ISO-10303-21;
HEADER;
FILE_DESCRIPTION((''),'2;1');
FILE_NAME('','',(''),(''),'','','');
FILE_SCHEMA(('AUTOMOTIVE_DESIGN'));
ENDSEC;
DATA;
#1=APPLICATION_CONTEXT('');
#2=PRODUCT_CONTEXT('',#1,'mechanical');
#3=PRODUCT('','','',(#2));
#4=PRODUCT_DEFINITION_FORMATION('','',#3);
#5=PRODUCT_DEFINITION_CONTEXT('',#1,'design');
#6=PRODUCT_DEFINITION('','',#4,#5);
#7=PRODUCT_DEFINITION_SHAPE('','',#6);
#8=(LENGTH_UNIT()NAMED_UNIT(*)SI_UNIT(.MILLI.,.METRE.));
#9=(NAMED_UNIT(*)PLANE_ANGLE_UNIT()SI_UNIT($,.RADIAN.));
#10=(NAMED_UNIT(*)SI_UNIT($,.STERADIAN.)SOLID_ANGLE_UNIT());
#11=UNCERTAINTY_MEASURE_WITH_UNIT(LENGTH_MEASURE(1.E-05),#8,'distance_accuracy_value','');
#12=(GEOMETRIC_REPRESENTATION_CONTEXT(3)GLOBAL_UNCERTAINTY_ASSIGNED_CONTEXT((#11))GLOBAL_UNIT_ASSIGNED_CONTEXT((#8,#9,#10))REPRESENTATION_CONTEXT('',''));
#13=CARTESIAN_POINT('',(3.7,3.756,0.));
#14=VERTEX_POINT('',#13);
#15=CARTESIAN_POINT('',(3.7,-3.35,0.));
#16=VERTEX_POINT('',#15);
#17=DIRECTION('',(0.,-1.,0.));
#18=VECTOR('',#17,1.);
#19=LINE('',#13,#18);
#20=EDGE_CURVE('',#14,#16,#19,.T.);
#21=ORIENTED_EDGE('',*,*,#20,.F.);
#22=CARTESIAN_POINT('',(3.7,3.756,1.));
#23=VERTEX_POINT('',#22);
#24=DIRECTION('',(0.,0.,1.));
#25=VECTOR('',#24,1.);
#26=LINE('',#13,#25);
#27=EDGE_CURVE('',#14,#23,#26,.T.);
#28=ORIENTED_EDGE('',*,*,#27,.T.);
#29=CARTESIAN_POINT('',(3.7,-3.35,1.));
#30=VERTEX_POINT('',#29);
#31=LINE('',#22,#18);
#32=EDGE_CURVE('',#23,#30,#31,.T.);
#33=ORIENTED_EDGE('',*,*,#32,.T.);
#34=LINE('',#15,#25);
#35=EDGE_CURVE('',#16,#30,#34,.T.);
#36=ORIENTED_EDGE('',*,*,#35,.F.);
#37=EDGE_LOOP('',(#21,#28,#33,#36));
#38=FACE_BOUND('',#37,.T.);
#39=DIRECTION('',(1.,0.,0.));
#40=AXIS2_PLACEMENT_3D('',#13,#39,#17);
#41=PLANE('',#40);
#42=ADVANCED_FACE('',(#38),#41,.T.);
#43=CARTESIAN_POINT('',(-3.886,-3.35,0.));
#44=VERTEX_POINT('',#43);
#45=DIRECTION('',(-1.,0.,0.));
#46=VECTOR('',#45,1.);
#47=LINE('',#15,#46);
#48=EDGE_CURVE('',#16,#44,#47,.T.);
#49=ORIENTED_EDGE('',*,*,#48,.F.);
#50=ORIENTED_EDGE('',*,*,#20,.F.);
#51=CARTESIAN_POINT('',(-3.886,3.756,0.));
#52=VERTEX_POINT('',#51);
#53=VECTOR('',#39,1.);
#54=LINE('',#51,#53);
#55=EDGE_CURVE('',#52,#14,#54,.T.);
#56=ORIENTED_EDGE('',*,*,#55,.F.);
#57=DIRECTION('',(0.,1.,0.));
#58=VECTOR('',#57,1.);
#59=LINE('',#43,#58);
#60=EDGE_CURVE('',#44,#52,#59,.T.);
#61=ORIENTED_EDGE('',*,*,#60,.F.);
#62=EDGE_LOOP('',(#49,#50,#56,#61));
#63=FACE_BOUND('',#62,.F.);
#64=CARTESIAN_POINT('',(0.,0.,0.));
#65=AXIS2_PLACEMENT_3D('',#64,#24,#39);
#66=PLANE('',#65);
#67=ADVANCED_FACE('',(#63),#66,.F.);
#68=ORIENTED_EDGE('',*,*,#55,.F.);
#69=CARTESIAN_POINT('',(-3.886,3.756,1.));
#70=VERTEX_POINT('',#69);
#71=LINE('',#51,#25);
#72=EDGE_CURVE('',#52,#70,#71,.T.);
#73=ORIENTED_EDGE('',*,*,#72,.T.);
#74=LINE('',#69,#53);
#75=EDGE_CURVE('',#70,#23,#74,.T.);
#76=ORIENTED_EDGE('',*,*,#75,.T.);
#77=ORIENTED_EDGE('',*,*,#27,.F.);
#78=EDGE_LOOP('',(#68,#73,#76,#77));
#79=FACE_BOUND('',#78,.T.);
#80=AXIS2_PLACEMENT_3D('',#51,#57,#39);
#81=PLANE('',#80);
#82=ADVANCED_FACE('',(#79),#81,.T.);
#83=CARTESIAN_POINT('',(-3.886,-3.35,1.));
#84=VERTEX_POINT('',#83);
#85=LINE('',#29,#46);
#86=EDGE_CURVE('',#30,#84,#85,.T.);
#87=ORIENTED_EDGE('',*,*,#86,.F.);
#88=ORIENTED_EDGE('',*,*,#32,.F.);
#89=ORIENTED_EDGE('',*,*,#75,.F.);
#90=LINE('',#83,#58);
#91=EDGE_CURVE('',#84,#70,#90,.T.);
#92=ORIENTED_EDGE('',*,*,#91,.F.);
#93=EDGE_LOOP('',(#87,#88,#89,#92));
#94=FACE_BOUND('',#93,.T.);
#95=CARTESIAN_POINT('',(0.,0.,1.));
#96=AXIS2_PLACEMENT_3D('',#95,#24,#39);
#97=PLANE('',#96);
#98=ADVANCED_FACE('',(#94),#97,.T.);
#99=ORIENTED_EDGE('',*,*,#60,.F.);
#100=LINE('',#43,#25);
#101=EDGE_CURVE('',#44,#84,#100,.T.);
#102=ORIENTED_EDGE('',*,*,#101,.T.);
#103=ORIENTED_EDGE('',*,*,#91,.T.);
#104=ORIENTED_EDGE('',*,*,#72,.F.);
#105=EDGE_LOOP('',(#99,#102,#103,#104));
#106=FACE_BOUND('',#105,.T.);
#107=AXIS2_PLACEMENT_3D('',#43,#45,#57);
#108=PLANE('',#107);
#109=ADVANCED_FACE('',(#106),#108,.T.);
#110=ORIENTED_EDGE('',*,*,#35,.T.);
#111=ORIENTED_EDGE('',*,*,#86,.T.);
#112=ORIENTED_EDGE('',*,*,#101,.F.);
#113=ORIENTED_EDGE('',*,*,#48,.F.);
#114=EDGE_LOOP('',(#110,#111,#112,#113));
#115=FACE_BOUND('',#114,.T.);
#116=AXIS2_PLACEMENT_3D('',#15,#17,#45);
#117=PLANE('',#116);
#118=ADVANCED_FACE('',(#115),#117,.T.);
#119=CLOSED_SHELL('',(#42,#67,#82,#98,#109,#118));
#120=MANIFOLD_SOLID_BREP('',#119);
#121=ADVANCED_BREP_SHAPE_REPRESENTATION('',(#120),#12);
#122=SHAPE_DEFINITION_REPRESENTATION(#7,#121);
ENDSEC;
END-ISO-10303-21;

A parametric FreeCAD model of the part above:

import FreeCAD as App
import Part
import Sketcher

V = App.Vector


def add_polygon(sketch, points):
    """Adds a closed chain of lines whose ends are joined by coincident constraints."""
    first, n = sketch.GeometryCount, len(points)
    for a, b in zip(points, points[1:] + points[:1]):
        sketch.addGeometry(Part.LineSegment(App.Vector(*a, 0), App.Vector(*b, 0)), False)
    for i in range(n):
        sketch.addConstraint(Sketcher.Constraint("Coincident", first + i, 2, first + (i + 1) % n, 1))

doc = App.newDocument("Part")
body = doc.addObject("PartDesign::Body", "Body")

sketch1 = body.newObject("Sketcher::SketchObject", "Sketch")
sketch1.AttachmentSupport = (doc.getObject("XY_Plane"), [""])
sketch1.MapMode = "FlatFace"
add_polygon(sketch1, [(-3.886, 3.756), (-3.886, -3.35), (3.7, -3.35), (3.7, 3.756)])
sketch1.addConstraint(Sketcher.Constraint("Vertical", 0))
sketch1.addConstraint(Sketcher.Constraint("Horizontal", 1))
sketch1.addConstraint(Sketcher.Constraint("Vertical", 2))
sketch1.addConstraint(Sketcher.Constraint("Horizontal", 3))
sketch1.addConstraint(Sketcher.Constraint("DistanceX", -1, 1, 1, 2, 3.7))
sketch1.addConstraint(Sketcher.Constraint("DistanceX", 1, 1, 1, 2, 7.586))
sketch1.addConstraint(Sketcher.Constraint("DistanceY", 0, 2, 0, 1, 7.106))
sketch1.addConstraint(Sketcher.Constraint("DistanceY", 0, 2, -1, 1, 3.35))
pad1 = body.newObject("PartDesign::Pad", "Pad")
pad1.Profile = sketch1
pad1.Length = 1

doc.recompute()
